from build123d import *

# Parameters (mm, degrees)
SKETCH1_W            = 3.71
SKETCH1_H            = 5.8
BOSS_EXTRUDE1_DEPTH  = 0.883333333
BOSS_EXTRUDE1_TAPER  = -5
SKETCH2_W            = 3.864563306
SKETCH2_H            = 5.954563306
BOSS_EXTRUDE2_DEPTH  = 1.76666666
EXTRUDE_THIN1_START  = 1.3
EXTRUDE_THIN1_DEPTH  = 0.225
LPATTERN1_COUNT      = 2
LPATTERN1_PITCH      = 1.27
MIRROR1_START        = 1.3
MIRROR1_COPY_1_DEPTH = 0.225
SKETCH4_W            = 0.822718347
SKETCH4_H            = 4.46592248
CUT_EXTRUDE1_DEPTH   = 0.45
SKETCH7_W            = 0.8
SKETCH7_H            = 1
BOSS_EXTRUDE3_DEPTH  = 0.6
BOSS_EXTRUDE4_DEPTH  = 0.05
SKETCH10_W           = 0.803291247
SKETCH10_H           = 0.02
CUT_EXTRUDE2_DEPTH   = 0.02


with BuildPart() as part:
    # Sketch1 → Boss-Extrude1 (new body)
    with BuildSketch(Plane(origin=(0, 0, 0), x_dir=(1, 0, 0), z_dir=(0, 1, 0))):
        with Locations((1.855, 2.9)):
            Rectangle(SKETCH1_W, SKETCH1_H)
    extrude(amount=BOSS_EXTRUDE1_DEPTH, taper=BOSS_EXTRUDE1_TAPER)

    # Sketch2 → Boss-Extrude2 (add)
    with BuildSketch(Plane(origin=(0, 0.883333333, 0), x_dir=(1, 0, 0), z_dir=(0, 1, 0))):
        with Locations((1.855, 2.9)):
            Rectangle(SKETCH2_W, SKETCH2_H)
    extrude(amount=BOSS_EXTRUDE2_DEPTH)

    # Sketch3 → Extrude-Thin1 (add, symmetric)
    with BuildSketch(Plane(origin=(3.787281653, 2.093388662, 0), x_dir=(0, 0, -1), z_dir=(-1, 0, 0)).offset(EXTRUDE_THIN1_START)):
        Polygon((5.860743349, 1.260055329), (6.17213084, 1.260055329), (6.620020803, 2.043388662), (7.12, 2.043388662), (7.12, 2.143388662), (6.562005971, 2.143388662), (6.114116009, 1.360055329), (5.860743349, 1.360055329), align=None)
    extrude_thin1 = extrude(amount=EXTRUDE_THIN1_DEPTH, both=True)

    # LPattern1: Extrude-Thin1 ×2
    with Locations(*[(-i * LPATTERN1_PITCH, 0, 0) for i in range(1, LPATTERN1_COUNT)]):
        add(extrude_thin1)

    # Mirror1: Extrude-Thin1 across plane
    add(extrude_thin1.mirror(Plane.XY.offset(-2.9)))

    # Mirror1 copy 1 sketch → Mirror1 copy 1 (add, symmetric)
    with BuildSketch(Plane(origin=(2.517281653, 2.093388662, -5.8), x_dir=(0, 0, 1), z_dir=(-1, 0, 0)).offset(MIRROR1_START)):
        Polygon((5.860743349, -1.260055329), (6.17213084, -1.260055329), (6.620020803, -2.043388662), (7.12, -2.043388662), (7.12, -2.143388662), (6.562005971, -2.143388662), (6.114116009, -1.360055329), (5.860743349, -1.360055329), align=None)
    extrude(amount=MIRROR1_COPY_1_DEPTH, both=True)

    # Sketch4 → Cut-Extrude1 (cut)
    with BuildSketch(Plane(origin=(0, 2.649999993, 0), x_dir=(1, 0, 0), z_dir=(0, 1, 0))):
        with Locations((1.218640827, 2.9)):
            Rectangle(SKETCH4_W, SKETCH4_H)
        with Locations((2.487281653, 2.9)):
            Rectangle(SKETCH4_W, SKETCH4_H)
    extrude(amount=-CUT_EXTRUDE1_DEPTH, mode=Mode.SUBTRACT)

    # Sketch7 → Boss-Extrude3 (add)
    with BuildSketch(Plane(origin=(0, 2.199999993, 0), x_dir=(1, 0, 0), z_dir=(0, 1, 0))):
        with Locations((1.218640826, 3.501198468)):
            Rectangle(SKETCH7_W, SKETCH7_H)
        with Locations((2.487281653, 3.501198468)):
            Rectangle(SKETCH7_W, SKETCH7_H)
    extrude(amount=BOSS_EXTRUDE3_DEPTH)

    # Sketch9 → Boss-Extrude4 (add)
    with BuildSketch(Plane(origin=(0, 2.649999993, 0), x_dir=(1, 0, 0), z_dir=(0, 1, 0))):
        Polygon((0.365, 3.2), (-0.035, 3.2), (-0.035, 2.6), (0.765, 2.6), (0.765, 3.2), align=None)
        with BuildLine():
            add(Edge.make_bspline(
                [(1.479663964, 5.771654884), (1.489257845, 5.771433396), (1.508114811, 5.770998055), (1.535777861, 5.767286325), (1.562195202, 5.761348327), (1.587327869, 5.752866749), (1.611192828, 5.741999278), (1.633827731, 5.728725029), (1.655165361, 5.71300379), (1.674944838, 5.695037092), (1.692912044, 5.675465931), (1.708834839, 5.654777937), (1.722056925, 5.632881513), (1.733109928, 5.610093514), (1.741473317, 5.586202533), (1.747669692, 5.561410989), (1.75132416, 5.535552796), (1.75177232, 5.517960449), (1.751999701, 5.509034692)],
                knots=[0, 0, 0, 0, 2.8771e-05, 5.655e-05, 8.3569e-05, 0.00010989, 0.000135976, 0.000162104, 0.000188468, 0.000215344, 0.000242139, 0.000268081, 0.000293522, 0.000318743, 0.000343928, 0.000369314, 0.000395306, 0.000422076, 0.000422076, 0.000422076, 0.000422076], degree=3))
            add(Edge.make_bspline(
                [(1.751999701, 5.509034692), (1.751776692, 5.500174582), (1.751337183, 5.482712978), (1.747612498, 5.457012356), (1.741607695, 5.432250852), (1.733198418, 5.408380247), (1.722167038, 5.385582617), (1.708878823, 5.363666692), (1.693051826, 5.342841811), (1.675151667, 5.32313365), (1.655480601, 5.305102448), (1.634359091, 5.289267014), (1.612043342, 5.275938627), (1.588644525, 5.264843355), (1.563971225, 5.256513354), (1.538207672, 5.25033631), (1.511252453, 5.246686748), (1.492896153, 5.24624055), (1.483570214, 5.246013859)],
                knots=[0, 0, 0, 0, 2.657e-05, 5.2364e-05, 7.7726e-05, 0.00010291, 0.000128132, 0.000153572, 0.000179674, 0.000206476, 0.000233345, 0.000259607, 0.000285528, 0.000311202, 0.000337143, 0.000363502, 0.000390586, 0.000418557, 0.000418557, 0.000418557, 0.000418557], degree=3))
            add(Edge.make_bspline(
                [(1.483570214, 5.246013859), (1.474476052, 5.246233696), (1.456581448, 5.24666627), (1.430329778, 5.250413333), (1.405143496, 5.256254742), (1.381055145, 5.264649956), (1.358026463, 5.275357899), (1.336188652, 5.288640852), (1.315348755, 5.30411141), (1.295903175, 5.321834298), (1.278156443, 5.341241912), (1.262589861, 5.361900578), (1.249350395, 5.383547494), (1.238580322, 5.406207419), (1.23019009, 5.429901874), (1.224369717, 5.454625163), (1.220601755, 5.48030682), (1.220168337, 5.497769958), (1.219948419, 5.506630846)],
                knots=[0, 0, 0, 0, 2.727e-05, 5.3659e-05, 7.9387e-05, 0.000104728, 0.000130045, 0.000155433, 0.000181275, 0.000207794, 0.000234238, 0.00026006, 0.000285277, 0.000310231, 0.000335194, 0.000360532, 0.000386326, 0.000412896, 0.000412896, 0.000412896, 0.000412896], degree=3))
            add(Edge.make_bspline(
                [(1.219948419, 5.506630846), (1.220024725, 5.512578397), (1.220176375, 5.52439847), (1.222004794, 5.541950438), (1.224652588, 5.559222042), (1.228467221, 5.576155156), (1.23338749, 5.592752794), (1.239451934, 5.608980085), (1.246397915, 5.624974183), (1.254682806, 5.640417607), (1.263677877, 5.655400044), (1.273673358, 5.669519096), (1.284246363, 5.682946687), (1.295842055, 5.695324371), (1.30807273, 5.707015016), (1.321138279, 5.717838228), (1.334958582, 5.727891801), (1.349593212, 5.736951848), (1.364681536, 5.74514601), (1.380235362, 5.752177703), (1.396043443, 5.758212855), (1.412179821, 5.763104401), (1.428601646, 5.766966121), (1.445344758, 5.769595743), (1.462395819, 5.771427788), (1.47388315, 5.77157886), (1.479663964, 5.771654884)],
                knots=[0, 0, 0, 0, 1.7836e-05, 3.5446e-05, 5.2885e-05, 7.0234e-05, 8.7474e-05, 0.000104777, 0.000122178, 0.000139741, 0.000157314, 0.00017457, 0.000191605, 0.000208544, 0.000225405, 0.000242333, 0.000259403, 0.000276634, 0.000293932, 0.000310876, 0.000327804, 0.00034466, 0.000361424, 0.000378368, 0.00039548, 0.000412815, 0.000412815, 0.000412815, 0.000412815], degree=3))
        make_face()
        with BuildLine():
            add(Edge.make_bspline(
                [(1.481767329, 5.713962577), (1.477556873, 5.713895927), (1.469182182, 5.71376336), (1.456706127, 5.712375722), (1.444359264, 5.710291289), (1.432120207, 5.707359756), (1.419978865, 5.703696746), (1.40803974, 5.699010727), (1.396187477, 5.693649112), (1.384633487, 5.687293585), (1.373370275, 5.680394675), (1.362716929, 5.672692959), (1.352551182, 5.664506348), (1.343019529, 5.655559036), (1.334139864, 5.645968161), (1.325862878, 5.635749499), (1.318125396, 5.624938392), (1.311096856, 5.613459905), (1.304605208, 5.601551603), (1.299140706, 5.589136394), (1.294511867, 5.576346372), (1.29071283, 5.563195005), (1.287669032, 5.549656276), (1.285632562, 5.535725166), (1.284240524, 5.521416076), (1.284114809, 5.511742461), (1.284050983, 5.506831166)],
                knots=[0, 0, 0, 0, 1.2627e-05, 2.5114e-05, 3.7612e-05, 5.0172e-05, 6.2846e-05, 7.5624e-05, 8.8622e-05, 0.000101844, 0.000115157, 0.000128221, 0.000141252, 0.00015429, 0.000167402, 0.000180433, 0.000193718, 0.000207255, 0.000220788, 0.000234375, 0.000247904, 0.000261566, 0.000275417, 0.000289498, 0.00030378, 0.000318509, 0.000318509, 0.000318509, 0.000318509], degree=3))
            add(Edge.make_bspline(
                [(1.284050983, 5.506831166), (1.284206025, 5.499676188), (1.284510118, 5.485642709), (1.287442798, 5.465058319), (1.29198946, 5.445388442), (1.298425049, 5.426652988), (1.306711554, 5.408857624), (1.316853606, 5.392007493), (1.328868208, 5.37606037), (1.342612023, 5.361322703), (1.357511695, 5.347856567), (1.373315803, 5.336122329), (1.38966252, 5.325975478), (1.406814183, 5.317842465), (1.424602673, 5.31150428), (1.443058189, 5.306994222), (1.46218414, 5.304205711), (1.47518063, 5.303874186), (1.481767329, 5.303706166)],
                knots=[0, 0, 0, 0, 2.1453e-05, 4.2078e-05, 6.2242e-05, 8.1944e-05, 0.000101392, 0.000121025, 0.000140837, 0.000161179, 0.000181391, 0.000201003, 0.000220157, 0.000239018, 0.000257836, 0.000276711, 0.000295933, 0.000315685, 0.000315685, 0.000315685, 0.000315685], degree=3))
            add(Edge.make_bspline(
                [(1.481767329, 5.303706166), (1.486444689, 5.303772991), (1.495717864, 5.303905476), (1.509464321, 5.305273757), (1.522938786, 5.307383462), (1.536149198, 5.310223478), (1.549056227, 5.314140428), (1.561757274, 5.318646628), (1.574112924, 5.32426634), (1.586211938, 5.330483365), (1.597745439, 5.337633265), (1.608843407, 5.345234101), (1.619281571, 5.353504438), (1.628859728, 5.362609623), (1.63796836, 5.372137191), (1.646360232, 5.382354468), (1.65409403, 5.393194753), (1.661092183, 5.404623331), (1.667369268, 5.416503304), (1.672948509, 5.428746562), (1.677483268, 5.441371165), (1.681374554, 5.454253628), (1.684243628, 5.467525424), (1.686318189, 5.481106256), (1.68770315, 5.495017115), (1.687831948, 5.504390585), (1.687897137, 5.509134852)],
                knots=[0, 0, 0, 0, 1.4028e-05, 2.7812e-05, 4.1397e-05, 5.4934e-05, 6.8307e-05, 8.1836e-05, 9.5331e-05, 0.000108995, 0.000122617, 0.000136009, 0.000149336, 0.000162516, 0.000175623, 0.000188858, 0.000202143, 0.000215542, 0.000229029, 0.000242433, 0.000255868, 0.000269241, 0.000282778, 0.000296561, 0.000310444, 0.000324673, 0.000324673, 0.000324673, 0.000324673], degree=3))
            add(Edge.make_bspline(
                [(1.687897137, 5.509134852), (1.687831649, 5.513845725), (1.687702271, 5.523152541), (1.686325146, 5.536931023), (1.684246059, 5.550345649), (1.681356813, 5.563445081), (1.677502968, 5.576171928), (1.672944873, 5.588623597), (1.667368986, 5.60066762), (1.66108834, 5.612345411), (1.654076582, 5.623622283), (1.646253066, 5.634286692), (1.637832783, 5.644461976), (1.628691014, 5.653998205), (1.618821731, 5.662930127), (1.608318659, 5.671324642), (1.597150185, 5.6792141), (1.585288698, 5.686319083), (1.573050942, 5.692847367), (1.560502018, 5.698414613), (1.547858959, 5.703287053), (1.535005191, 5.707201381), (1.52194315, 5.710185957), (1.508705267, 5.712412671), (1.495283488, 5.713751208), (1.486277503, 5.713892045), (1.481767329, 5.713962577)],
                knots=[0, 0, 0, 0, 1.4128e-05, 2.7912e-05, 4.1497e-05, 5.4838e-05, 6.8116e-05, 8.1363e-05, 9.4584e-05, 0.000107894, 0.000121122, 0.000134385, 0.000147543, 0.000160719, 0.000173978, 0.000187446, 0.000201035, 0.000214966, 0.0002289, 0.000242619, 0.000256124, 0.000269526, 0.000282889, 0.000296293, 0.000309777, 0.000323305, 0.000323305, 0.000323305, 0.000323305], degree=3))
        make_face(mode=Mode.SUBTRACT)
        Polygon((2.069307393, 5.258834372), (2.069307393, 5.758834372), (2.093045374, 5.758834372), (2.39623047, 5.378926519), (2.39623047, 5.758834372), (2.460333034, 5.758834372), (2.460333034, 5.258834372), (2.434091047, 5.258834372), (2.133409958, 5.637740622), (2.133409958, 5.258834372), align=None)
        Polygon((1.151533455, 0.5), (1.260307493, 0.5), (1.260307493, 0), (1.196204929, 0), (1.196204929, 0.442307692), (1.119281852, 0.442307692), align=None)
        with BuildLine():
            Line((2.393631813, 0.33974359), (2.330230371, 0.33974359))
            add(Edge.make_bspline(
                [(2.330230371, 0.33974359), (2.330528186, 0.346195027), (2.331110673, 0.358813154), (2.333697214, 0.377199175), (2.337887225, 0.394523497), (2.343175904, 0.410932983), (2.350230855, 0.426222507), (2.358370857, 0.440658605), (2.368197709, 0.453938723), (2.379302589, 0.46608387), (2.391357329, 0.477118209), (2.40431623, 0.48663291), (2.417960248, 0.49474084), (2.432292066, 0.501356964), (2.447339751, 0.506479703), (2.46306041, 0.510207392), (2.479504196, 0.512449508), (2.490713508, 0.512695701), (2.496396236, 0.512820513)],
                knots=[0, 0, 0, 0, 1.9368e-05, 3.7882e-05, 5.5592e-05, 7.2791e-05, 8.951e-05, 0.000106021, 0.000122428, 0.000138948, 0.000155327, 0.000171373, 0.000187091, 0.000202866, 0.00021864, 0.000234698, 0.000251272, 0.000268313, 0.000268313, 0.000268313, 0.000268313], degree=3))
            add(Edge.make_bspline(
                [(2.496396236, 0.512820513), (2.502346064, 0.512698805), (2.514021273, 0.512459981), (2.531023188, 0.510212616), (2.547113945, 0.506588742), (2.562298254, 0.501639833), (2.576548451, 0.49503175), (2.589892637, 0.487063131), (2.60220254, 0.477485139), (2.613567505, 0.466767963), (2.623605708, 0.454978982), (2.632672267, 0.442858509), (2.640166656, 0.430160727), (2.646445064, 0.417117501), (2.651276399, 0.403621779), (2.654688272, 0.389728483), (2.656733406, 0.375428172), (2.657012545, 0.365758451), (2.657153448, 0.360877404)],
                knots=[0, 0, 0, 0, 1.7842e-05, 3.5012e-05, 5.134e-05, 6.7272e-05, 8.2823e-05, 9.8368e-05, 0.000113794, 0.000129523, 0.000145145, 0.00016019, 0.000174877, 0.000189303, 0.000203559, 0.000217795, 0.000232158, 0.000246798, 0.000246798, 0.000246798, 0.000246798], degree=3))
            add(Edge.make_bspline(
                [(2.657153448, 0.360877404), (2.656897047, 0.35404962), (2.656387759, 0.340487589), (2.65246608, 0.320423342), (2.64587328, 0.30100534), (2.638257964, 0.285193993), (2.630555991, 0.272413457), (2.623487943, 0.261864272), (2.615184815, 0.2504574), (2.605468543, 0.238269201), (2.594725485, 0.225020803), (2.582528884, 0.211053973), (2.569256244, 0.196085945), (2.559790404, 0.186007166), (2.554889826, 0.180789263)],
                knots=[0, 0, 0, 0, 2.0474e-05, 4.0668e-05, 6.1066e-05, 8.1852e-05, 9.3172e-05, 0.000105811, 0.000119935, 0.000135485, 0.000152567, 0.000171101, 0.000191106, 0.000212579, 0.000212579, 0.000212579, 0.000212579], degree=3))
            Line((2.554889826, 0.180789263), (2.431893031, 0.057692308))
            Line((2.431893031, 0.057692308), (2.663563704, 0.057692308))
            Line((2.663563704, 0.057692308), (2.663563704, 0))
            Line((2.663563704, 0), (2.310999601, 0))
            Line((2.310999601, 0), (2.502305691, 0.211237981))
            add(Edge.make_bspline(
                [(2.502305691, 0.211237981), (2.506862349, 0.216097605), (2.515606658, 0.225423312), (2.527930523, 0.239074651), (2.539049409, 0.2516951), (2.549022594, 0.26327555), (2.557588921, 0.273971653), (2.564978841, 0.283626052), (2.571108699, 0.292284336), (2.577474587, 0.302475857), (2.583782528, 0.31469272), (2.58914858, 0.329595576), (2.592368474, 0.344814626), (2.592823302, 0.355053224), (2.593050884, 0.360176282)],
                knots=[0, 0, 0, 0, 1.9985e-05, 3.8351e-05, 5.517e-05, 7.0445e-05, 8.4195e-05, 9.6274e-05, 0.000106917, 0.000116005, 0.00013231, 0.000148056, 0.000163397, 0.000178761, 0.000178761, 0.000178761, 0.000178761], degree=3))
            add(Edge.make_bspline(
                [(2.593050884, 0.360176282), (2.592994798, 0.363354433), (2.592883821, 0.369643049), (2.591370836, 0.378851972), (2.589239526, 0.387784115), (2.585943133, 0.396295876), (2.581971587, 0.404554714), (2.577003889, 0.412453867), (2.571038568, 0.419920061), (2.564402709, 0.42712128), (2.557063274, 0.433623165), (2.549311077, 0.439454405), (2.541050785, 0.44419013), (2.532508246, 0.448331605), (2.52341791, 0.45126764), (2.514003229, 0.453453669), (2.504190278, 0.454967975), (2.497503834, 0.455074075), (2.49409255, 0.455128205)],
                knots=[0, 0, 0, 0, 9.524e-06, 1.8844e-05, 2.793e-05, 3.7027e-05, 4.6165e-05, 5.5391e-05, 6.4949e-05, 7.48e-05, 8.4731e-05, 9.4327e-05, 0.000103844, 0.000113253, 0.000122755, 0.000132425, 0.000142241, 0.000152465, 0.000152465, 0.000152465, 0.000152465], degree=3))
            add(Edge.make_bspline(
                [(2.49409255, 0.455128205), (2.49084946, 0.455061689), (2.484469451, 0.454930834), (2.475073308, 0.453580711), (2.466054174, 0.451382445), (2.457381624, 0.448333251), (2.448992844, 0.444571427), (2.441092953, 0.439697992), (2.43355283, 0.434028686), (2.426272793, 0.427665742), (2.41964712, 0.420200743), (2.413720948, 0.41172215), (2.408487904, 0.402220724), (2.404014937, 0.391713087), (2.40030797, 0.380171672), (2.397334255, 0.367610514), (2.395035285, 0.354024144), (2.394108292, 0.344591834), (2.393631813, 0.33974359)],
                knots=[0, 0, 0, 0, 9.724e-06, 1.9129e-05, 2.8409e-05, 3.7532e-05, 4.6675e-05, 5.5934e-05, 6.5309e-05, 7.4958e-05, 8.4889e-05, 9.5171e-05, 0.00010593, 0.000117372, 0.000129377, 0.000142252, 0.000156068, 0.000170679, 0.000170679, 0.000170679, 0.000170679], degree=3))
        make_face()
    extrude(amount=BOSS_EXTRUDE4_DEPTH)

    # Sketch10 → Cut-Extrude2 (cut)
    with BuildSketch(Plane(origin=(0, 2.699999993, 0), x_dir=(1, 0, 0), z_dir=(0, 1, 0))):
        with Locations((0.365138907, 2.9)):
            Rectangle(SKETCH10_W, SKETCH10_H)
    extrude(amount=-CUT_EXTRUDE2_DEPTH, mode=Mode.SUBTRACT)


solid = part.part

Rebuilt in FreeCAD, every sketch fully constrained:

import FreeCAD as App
import Part
import Sketcher
from FreeCAD import Vector
Q = App.Units.Quantity

doc = App.newDocument("Part")
body = doc.addObject("PartDesign::Body", "Body")

sketch1 = doc.addObject("Sketcher::SketchObject", "Sketch")
body.addObject(sketch1)
sketch1.AttachmentSupport = (doc.XZ_Plane, [""])
sketch1.MapMode = "FlatFace"
sketch1.addGeometry([
    Part.LineSegment(Vector(0, -5.8, 0), Vector(0, 0, 0)),
    Part.LineSegment(Vector(0, 0, 0), Vector(3.7, 0, 0)),
    Part.LineSegment(Vector(3.7, 0, 0), Vector(3.7, -5.8, 0)),
    Part.LineSegment(Vector(3.7, -5.8, 0), Vector(0, -5.8, 0)),
], False)
sketch1.addConstraint([
    Sketcher.Constraint("Coincident", 0, 2, 1, 1),
    Sketcher.Constraint("Coincident", 1, 2, 2, 1),
    Sketcher.Constraint("Coincident", 2, 2, 3, 1),
    Sketcher.Constraint("Coincident", 3, 2, 0, 1),
    Sketcher.Constraint("Vertical", 0),
    Sketcher.Constraint("Horizontal", 1),
    Sketcher.Constraint("Vertical", 2),
    Sketcher.Constraint("Horizontal", 3),
    Sketcher.Constraint("Coincident", 0, 2, -1, 1),
    Sketcher.Constraint("DistanceY", 0, 1, 0, 2, Q("5.8 mm")),
    Sketcher.Constraint("DistanceX", 1, 1, 1, 2, Q("3.71 mm")),
])
pad1 = doc.addObject("PartDesign::Pad", "Pad")
body.addObject(pad1)
pad1.Profile = sketch1
pad1.Length = 0.883333
pad1.Reversed = True
pad1.TaperAngle = 5

sketch2 = doc.addObject("Sketcher::SketchObject", "Sketch001")
body.addObject(sketch2)
sketch2.AttachmentSupport = (doc.XZ_Plane, [""])
sketch2.MapMode = "FlatFace"
sketch2.AttachmentOffset = App.Placement(Vector(0, 0, -0.883333), App.Rotation())
sketch2.addGeometry([
    Part.LineSegment(Vector(-0.1, -5.9, 0), Vector(-0.1, 0.1, 0)),
    Part.LineSegment(Vector(-0.1, 0.1, 0), Vector(3.8, 0.1, 0)),
    Part.LineSegment(Vector(3.8, 0.1, 0), Vector(3.8, -5.9, 0)),
    Part.LineSegment(Vector(3.8, -5.9, 0), Vector(-0.1, -5.9, 0)),
], False)
sketch2.addConstraint([
    Sketcher.Constraint("Coincident", 0, 2, 1, 1),
    Sketcher.Constraint("Coincident", 1, 2, 2, 1),
    Sketcher.Constraint("Coincident", 2, 2, 3, 1),
    Sketcher.Constraint("Coincident", 3, 2, 0, 1),
    Sketcher.Constraint("Vertical", 0),
    Sketcher.Constraint("Horizontal", 1),
    Sketcher.Constraint("Vertical", 2),
    Sketcher.Constraint("Horizontal", 3),
    Sketcher.Constraint("DistanceX", 1, 1, 1, 2, Q("3.864563 mm")),
    Sketcher.Constraint("DistanceY", 0, 1, 0, 2, Q("5.954563 mm")),
    Sketcher.Constraint("DistanceX", 0, 2, -1, 1, Q("0.077282 mm")),
    Sketcher.Constraint("DistanceY", -1, 1, 0, 2, Q("0.077282 mm")),
])
pad2 = doc.addObject("PartDesign::Pad", "Pad001")
body.addObject(pad2)
pad2.Profile = sketch2
pad2.Length = 1.766667
pad2.Reversed = True

sketch3 = doc.addObject("Sketcher::SketchObject", "Sketch002")
body.addObject(sketch3)
sketch3.AttachmentSupport = (doc.YZ_Plane, [""])
sketch3.MapMode = "FlatFace"
sketch3.AttachmentOffset = App.Placement(Vector(0, 0, 2.487282), App.Rotation())
sketch3.addGeometry([
    Part.LineSegment(Vector(0.83, -5.86, 0), Vector(0.83, -6.17, 0)),
    Part.LineSegment(Vector(0.83, -6.17, 0), Vector(0.05, -6.62, 0)),
    Part.LineSegment(Vector(0.05, -6.62, 0), Vector(0.05, -7.12, 0)),
    Part.LineSegment(Vector(0.05, -7.12, 0), Vector(-0.05, -7.12, 0)),
    Part.LineSegment(Vector(-0.05, -7.12, 0), Vector(-0.05, -6.56, 0)),
    Part.LineSegment(Vector(-0.05, -6.56, 0), Vector(0.73, -6.11, 0)),
    Part.LineSegment(Vector(0.73, -6.11, 0), Vector(0.73, -5.86, 0)),
    Part.LineSegment(Vector(0.73, -5.86, 0), Vector(0.83, -5.86, 0)),
], False)
sketch3.addConstraint([
    Sketcher.Constraint("Coincident", 0, 2, 1, 1),
    Sketcher.Constraint("Coincident", 1, 2, 2, 1),
    Sketcher.Constraint("Coincident", 2, 2, 3, 1),
    Sketcher.Constraint("Coincident", 3, 2, 4, 1),
    Sketcher.Constraint("Coincident", 4, 2, 5, 1),
    Sketcher.Constraint("Coincident", 5, 2, 6, 1),
    Sketcher.Constraint("Coincident", 6, 2, 7, 1),
    Sketcher.Constraint("Coincident", 7, 2, 0, 1),
    Sketcher.Constraint("Vertical", 0),
    Sketcher.Constraint("Vertical", 2),
    Sketcher.Constraint("Horizontal", 3),
    Sketcher.Constraint("Vertical", 4),
    Sketcher.Constraint("Vertical", 6),
    Sketcher.Constraint("Horizontal", 7),
    Sketcher.Constraint("Parallel", 1, 5),
    Sketcher.Constraint("Equal", 3, 7),
    Sketcher.Constraint("DistanceX", 3, 2, 3, 1, Q("0.1 mm")),
    Sketcher.Constraint("DistanceX", -1, 1, 1, 2, Q("0.05 mm")),
    Sketcher.Constraint("DistanceY", 2, 2, -1, 1, Q("7.12 mm")),
    Sketcher.Constraint("DistanceY", 2, 2, 2, 1, Q("0.499979 mm")),
    Sketcher.Constraint("Distance", 1, Q("0.902339 mm")),
    Sketcher.Constraint("DistanceY", 0, 2, 0, 1, Q("0.311387 mm")),
    Sketcher.Constraint("DistanceY", 4, 1, 4, 2, Q("0.557994 mm")),
    Sketcher.Constraint("DistanceY", 0, 2, -1, 1, Q("6.172131 mm")),
])
pad3 = doc.addObject("PartDesign::Pad", "Pad002")
body.addObject(pad3)
pad3.Profile = sketch3
pad3.Length = 0.45
pad3.Midplane = True
doc.recompute()

linearpattern = doc.addObject("PartDesign::LinearPattern", "LinearPattern")
body.addObject(linearpattern)
linearpattern.Originals = [pad3]
linearpattern.Direction = (doc.X_Axis, [""])
linearpattern.Mode = "offset"
linearpattern.Offset = 1.27
linearpattern.Occurrences = 2
linearpattern.Reversed = True
body.Tip = linearpattern
doc.recompute()

datumplane = doc.addObject("PartDesign::Plane", "DatumPlane")
body.addObject(datumplane)
datumplane.AttachmentSupport = (doc.XY_Plane, [""])
datumplane.MapMode = "FlatFace"
datumplane.AttachmentOffset = App.Placement(Vector(0, 0, -2.9), App.Rotation())
mirrored = doc.addObject("PartDesign::Mirrored", "Mirrored")
body.addObject(mirrored)
mirrored.Originals = [pad3]
mirrored.MirrorPlane = (datumplane, [""])
body.Tip = mirrored

sketch4 = doc.addObject("Sketcher::SketchObject", "Sketch003")
body.addObject(sketch4)
sketch4.AttachmentSupport = (doc.YZ_Plane, [""])
sketch4.MapMode = "FlatFace"
sketch4.AttachmentOffset = App.Placement(Vector(0, 0, 1.217282), App.Rotation())
sketch4.addGeometry([
    Part.LineSegment(Vector(0.83, 0.37, 0), Vector(0.83, 0.06, 0)),
    Part.LineSegment(Vector(0.83, 0.06, 0), Vector(0.73, 0.06, 0)),
    Part.LineSegment(Vector(0.73, 0.06, 0), Vector(0.73, 0.31, 0)),
    Part.LineSegment(Vector(0.73, 0.31, 0), Vector(-0.05, 0.76, 0)),
    Part.LineSegment(Vector(-0.05, 0.76, 0), Vector(-0.05, 1.32, 0)),
    Part.LineSegment(Vector(-0.05, 1.32, 0), Vector(0.05, 1.32, 0)),
    Part.LineSegment(Vector(0.05, 1.32, 0), Vector(0.05, 0.82, 0)),
    Part.LineSegment(Vector(0.05, 0.82, 0), Vector(0.83, 0.37, 0)),
], False)
sketch4.addConstraint([
    Sketcher.Constraint("Coincident", 0, 2, 1, 1),
    Sketcher.Constraint("Coincident", 1, 2, 2, 1),
    Sketcher.Constraint("Coincident", 2, 2, 3, 1),
    Sketcher.Constraint("Coincident", 3, 2, 4, 1),
    Sketcher.Constraint("Coincident", 4, 2, 5, 1),
    Sketcher.Constraint("Coincident", 5, 2, 6, 1),
    Sketcher.Constraint("Coincident", 6, 2, 7, 1),
    Sketcher.Constraint("Coincident", 7, 2, 0, 1),
    Sketcher.Constraint("Vertical", 0),
    Sketcher.Constraint("Horizontal", 1),
    Sketcher.Constraint("Vertical", 2),
    Sketcher.Constraint("Vertical", 4),
    Sketcher.Constraint("Horizontal", 5),
    Sketcher.Constraint("Vertical", 6),
    Sketcher.Constraint("Parallel", 3, 7),
    Sketcher.Constraint("Equal", 1, 5),
    Sketcher.Constraint("DistanceX", 1, 2, 1, 1, Q("0.1 mm")),
    Sketcher.Constraint("DistanceX", 3, 2, -1, 1, Q("0.05 mm")),
    Sketcher.Constraint("DistanceY", -1, 1, 4, 2, Q("1.32 mm")),
    Sketcher.Constraint("DistanceY", 6, 2, 6, 1, Q("0.499979 mm")),
    Sketcher.Constraint("Distance", 3, Q("0.902339 mm")),
    Sketcher.Constraint("DistanceY", 0, 2, 0, 1, Q("0.311387 mm")),
    Sketcher.Constraint("DistanceY", 2, 1, 2, 2, Q("0.253373 mm")),
    Sketcher.Constraint("DistanceY", -1, 1, 7, 2, Q("0.372131 mm")),
])
pad4 = doc.addObject("PartDesign::Pad", "Pad003")
body.addObject(pad4)
pad4.Profile = sketch4
pad4.Length = 0.45
pad4.Midplane = True

sketch5 = doc.addObject("Sketcher::SketchObject", "Sketch004")
body.addObject(sketch5)
sketch5.AttachmentSupport = (doc.XZ_Plane, [""])
sketch5.MapMode = "FlatFace"
sketch5.AttachmentOffset = App.Placement(Vector(0, 0, -2.65), App.Rotation())
sketch5.addGeometry([
    Part.LineSegment(Vector(0.8, -5.1, 0), Vector(0.8, -0.7, 0)),
    Part.LineSegment(Vector(0.8, -0.7, 0), Vector(1.6, -0.7, 0)),
    Part.LineSegment(Vector(1.6, -0.7, 0), Vector(1.6, -5.1, 0)),
    Part.LineSegment(Vector(1.6, -5.1, 0), Vector(0.8, -5.1, 0)),
    Part.LineSegment(Vector(2.1, -5.1, 0), Vector(2.1, -0.7, 0)),
    Part.LineSegment(Vector(2.1, -0.7, 0), Vector(2.9, -0.7, 0)),
    Part.LineSegment(Vector(2.9, -0.7, 0), Vector(2.9, -5.1, 0)),
    Part.LineSegment(Vector(2.9, -5.1, 0), Vector(2.1, -5.1, 0)),
], False)
sketch5.addConstraint([
    Sketcher.Constraint("Coincident", 0, 2, 1, 1),
    Sketcher.Constraint("Coincident", 1, 2, 2, 1),
    Sketcher.Constraint("Coincident", 2, 2, 3, 1),
    Sketcher.Constraint("Coincident", 3, 2, 0, 1),
    Sketcher.Constraint("Coincident", 4, 2, 5, 1),
    Sketcher.Constraint("Coincident", 5, 2, 6, 1),
    Sketcher.Constraint("Coincident", 6, 2, 7, 1),
    Sketcher.Constraint("Coincident", 7, 2, 4, 1),
    Sketcher.Constraint("Vertical", 0),
    Sketcher.Constraint("Horizontal", 1),
    Sketcher.Constraint("Vertical", 2),
    Sketcher.Constraint("Horizontal", 3),
    Sketcher.Constraint("Vertical", 4),
    Sketcher.Constraint("Horizontal", 5),
    Sketcher.Constraint("Vertical", 6),
    Sketcher.Constraint("Horizontal", 7),
    Sketcher.Constraint("Horizontal", 1, 2, 4, 2),
    Sketcher.Constraint("Horizontal", 3, 2, 6, 2),
    Sketcher.Constraint("Equal", 3, 5),
    Sketcher.Constraint("DistanceX", -1, 1, 1, 2, Q("1.63 mm")),
    Sketcher.Constraint("DistanceX", 1, 1, 1, 2, Q("0.822718 mm")),
    Sketcher.Constraint("DistanceY", 0, 1, 0, 2, Q("4.465922 mm")),
    Sketcher.Constraint("DistanceY", 0, 2, -1, 1, Q("0.667039 mm")),
    Sketcher.Constraint("DistanceX", -1, 1, 5, 2, Q("2.898641 mm")),
])
pocket1 = doc.addObject("PartDesign::Pocket", "Pocket")
body.addObject(pocket1)
pocket1.Profile = sketch5
pocket1.Length = 0.45
pocket1.Reversed = True

sketch6 = doc.addObject("Sketcher::SketchObject", "Sketch005")
body.addObject(sketch6)
sketch6.AttachmentSupport = (doc.XZ_Plane, [""])
sketch6.MapMode = "FlatFace"
sketch6.AttachmentOffset = App.Placement(Vector(0, 0, -2.2), App.Rotation())
sketch6.addGeometry([
    Part.LineSegment(Vector(0.8, -4, 0), Vector(0.8, -3, 0)),
    Part.LineSegment(Vector(0.8, -3, 0), Vector(1.6, -3, 0)),
    Part.LineSegment(Vector(1.6, -3, 0), Vector(1.6, -4, 0)),
    Part.LineSegment(Vector(1.6, -4, 0), Vector(0.8, -4, 0)),
    Part.LineSegment(Vector(2.1, -4, 0), Vector(2.1, -3, 0)),
    Part.LineSegment(Vector(2.1, -3, 0), Vector(2.9, -3, 0)),
    Part.LineSegment(Vector(2.9, -3, 0), Vector(2.9, -4, 0)),
    Part.LineSegment(Vector(2.9, -4, 0), Vector(2.1, -4, 0)),
], False)
sketch6.addConstraint([
    Sketcher.Constraint("Coincident", 0, 2, 1, 1),
    Sketcher.Constraint("Coincident", 1, 2, 2, 1),
    Sketcher.Constraint("Coincident", 2, 2, 3, 1),
    Sketcher.Constraint("Coincident", 3, 2, 0, 1),
    Sketcher.Constraint("Coincident", 4, 2, 5, 1),
    Sketcher.Constraint("Coincident", 5, 2, 6, 1),
    Sketcher.Constraint("Coincident", 6, 2, 7, 1),
    Sketcher.Constraint("Coincident", 7, 2, 4, 1),
    Sketcher.Constraint("Vertical", 0),
    Sketcher.Constraint("Horizontal", 1),
    Sketcher.Constraint("Vertical", 2),
    Sketcher.Constraint("Horizontal", 3),
    Sketcher.Constraint("Vertical", 4),
    Sketcher.Constraint("Horizontal", 5),
    Sketcher.Constraint("Vertical", 6),
    Sketcher.Constraint("Horizontal", 7),
    Sketcher.Constraint("Horizontal", 1, 2, 4, 2),
    Sketcher.Constraint("Horizontal", 3, 2, 6, 2),
    Sketcher.Constraint("Equal", 3, 5),
    Sketcher.Constraint("DistanceY", 0, 1, 0, 2, Q("1 mm")),
    Sketcher.Constraint("DistanceX", 1, 1, 1, 2, Q("0.8 mm")),
    Sketcher.Constraint("DistanceY", 0, 2, -1, 1, Q("3.001198 mm")),
    Sketcher.Constraint("DistanceX", -1, 1, 0, 2, Q("0.818641 mm")),
    Sketcher.Constraint("DistanceX", -1, 1, 4, 2, Q("2.087282 mm")),
])
pad5 = doc.addObject("PartDesign::Pad", "Pad004")
body.addObject(pad5)
pad5.Profile = sketch6
pad5.Length = 0.6
pad5.Reversed = True

sketch7 = doc.addObject("Sketcher::SketchObject", "Sketch006")
body.addObject(sketch7)
sketch7.AttachmentSupport = (doc.XZ_Plane, [""])
sketch7.MapMode = "FlatFace"
sketch7.AttachmentOffset = App.Placement(Vector(0, 0, -2.65), App.Rotation())
sketch7.addGeometry([
    Part.LineSegment(Vector(-0.035, -3.2, 0), Vector(-0.035, -2.6, 0)),
    Part.LineSegment(Vector(-0.035, -2.6, 0), Vector(0.765, -2.6, 0)),
    Part.LineSegment(Vector(0.765, -2.6, 0), Vector(0.765, -3.2, 0)),
    Part.LineSegment(Vector(0.765, -3.2, 0), Vector(-0.035, -3.2, 0)),
    Part.BSplineCurve([Vector(1.479664, -5.771655, 0), Vector(1.489258, -5.771433, 0), Vector(1.508115, -5.770998, 0), Vector(1.535778, -5.767286, 0), Vector(1.562195, -5.761348, 0), Vector(1.587328, -5.752867, 0), Vector(1.611193, -5.741999, 0), Vector(1.633828, -5.728725, 0), Vector(1.655165, -5.713004, 0), Vector(1.674945, -5.695037, 0), Vector(1.692912, -5.675466, 0), Vector(1.708835, -5.654778, 0), Vector(1.722057, -5.632882, 0), Vector(1.73311, -5.610094, 0), Vector(1.741473, -5.586203, 0), Vector(1.74767, -5.561411, 0), Vector(1.751324, -5.535553, 0), Vector(1.751772, -5.51796, 0), Vector(1.752, -5.509035, 0)], [4, 1, 1, 1, 1, 1, 1, 1, 1, 1, 1, 1, 1, 1, 1, 1, 4], [0, 0.000028771, 0.00005655, 0.000083569, 0.00010989, 0.000135976, 0.000162104, 0.000188468, 0.000215344, 0.000242139, 0.000268081, 0.000293522, 0.000318743, 0.000343928, 0.000369314, 0.000395306, 0.000422076], False, 3, [1, 1, 1, 1, 1, 1, 1, 1, 1, 1, 1, 1, 1, 1, 1, 1, 1, 1, 1], False),
    Part.BSplineCurve([Vector(1.219948, -5.506631, 0), Vector(1.220025, -5.512578, 0), Vector(1.220176, -5.524398, 0), Vector(1.222005, -5.54195, 0), Vector(1.224653, -5.559222, 0), Vector(1.228467, -5.576155, 0), Vector(1.233387, -5.592753, 0), Vector(1.239452, -5.60898, 0), Vector(1.246398, -5.624974, 0), Vector(1.254683, -5.640418, 0), Vector(1.263678, -5.6554, 0), Vector(1.273673, -5.669519, 0), Vector(1.284246, -5.682947, 0), Vector(1.295842, -5.695324, 0), Vector(1.308073, -5.707015, 0), Vector(1.321138, -5.717838, 0), Vector(1.334959, -5.727892, 0), Vector(1.349593, -5.736952, 0), Vector(1.364682, -5.745146, 0), Vector(1.380235, -5.752178, 0), Vector(1.396043, -5.758213, 0), Vector(1.41218, -5.763104, 0), Vector(1.428602, -5.766966, 0), Vector(1.445345, -5.769596, 0), Vector(1.462396, -5.771428, 0), Vector(1.473883, -5.771579, 0), Vector(1.479664, -5.771655, 0)], [4, 1, 1, 1, 1, 1, 1, 1, 1, 1, 1, 1, 1, 1, 1, 1, 1, 1, 1, 1, 1, 1, 1, 1, 4], [0, 0.000017836, 0.000035446, 0.000052885, 0.000070234, 0.000087474, 0.000104777, 0.000122178, 0.000139741, 0.000157314, 0.00017457, 0.000191605, 0.000208544, 0.000225405, 0.000242333, 0.000259403, 0.000276634, 0.000293932, 0.000310876, 0.000327804, 0.00034466, 0.000361424, 0.000378368, 0.00039548, 0.000412815], False, 3, [1, 1, 1, 1, 1, 1, 1, 1, 1, 1, 1, 1, 1, 1, 1, 1, 1, 1, 1, 1, 1, 1, 1, 1, 1, 1, 1], False),
    Part.BSplineCurve([Vector(1.48357, -5.246014, 0), Vector(1.474476, -5.246234, 0), Vector(1.456581, -5.246666, 0), Vector(1.43033, -5.250413, 0), Vector(1.405143, -5.256255, 0), Vector(1.381055, -5.26465, 0), Vector(1.358026, -5.275358, 0), Vector(1.336189, -5.288641, 0), Vector(1.315349, -5.304111, 0), Vector(1.295903, -5.321834, 0), Vector(1.278156, -5.341242, 0), Vector(1.26259, -5.361901, 0), Vector(1.24935, -5.383547, 0), Vector(1.23858, -5.406207, 0), Vector(1.23019, -5.429902, 0), Vector(1.22437, -5.454625, 0), Vector(1.220602, -5.480307, 0), Vector(1.220168, -5.49777, 0), Vector(1.219948, -5.506631, 0)], [4, 1, 1, 1, 1, 1, 1, 1, 1, 1, 1, 1, 1, 1, 1, 1, 4], [0, 0.00002727, 0.000053659, 0.000079387, 0.000104728, 0.000130045, 0.000155433, 0.000181275, 0.000207794, 0.000234238, 0.00026006, 0.000285277, 0.000310231, 0.000335194, 0.000360532, 0.000386326, 0.000412896], False, 3, [1, 1, 1, 1, 1, 1, 1, 1, 1, 1, 1, 1, 1, 1, 1, 1, 1, 1, 1], False),
    Part.BSplineCurve([Vector(1.752, -5.509035, 0), Vector(1.751777, -5.500175, 0), Vector(1.751337, -5.482713, 0), Vector(1.747612, -5.457012, 0), Vector(1.741608, -5.432251, 0), Vector(1.733198, -5.40838, 0), Vector(1.722167, -5.385583, 0), Vector(1.708879, -5.363667, 0), Vector(1.693052, -5.342842, 0), Vector(1.675152, -5.323134, 0), Vector(1.655481, -5.305102, 0), Vector(1.634359, -5.289267, 0), Vector(1.612043, -5.275939, 0), Vector(1.588645, -5.264843, 0), Vector(1.563971, -5.256513, 0), Vector(1.538208, -5.250336, 0), Vector(1.511252, -5.246687, 0), Vector(1.492896, -5.246241, 0), Vector(1.48357, -5.246014, 0)], [4, 1, 1, 1, 1, 1, 1, 1, 1, 1, 1, 1, 1, 1, 1, 1, 4], [0, 0.00002657, 0.000052364, 0.000077726, 0.00010291, 0.000128132, 0.000153572, 0.000179674, 0.000206476, 0.000233345, 0.000259607, 0.000285528, 0.000311202, 0.000337143, 0.000363502, 0.000390586, 0.000418557], False, 3, [1, 1, 1, 1, 1, 1, 1, 1, 1, 1, 1, 1, 1, 1, 1, 1, 1, 1, 1], False),
    Part.BSplineCurve([Vector(1.687897, -5.509135, 0), Vector(1.687832, -5.513846, 0), Vector(1.687702, -5.523153, 0), Vector(1.686325, -5.536931, 0), Vector(1.684246, -5.550346, 0), Vector(1.681357, -5.563445, 0), Vector(1.677503, -5.576172, 0), Vector(1.672945, -5.588624, 0), Vector(1.667369, -5.600668, 0), Vector(1.661088, -5.612345, 0), Vector(1.654077, -5.623622, 0), Vector(1.646253, -5.634287, 0), Vector(1.637833, -5.644462, 0), Vector(1.628691, -5.653998, 0), Vector(1.618822, -5.66293, 0), Vector(1.608319, -5.671325, 0), Vector(1.59715, -5.679214, 0), Vector(1.585289, -5.686319, 0), Vector(1.573051, -5.692847, 0), Vector(1.560502, -5.698415, 0), Vector(1.547859, -5.703287, 0), Vector(1.535005, -5.707201, 0), Vector(1.521943, -5.710186, 0), Vector(1.508705, -5.712413, 0), Vector(1.495283, -5.713751, 0), Vector(1.486278, -5.713892, 0), Vector(1.481767, -5.713963, 0)], [4, 1, 1, 1, 1, 1, 1, 1, 1, 1, 1, 1, 1, 1, 1, 1, 1, 1, 1, 1, 1, 1, 1, 1, 4], [0, 0.000014128, 0.000027912, 0.000041497, 0.000054838, 0.000068116, 0.000081363, 0.000094584, 0.000107894, 0.000121122, 0.000134385, 0.000147543, 0.000160719, 0.000173978, 0.000187446, 0.000201035, 0.000214966, 0.0002289, 0.000242619, 0.000256124, 0.000269526, 0.000282889, 0.000296293, 0.000309777, 0.000323305], False, 3, [1, 1, 1, 1, 1, 1, 1, 1, 1, 1, 1, 1, 1, 1, 1, 1, 1, 1, 1, 1, 1, 1, 1, 1, 1, 1, 1], False),
    Part.BSplineCurve([Vector(1.481767, -5.303706, 0), Vector(1.486445, -5.303773, 0), Vector(1.495718, -5.303905, 0), Vector(1.509464, -5.305274, 0), Vector(1.522939, -5.307383, 0), Vector(1.536149, -5.310223, 0), Vector(1.549056, -5.31414, 0), Vector(1.561757, -5.318647, 0), Vector(1.574113, -5.324266, 0), Vector(1.586212, -5.330483, 0), Vector(1.597745, -5.337633, 0), Vector(1.608843, -5.345234, 0), Vector(1.619282, -5.353504, 0), Vector(1.62886, -5.36261, 0), Vector(1.637968, -5.372137, 0), Vector(1.64636, -5.382354, 0), Vector(1.654094, -5.393195, 0), Vector(1.661092, -5.404623, 0), Vector(1.667369, -5.416503, 0), Vector(1.672949, -5.428747, 0), Vector(1.677483, -5.441371, 0), Vector(1.681375, -5.454254, 0), Vector(1.684244, -5.467525, 0), Vector(1.686318, -5.481106, 0), Vector(1.687703, -5.495017, 0), Vector(1.687832, -5.504391, 0), Vector(1.687897, -5.509135, 0)], [4, 1, 1, 1, 1, 1, 1, 1, 1, 1, 1, 1, 1, 1, 1, 1, 1, 1, 1, 1, 1, 1, 1, 1, 4], [0, 0.000014028, 0.000027812, 0.000041397, 0.000054934, 0.000068307, 0.000081836, 0.000095331, 0.000108995, 0.000122617, 0.000136009, 0.000149336, 0.000162516, 0.000175623, 0.000188858, 0.000202143, 0.000215542, 0.000229029, 0.000242433, 0.000255868, 0.000269241, 0.000282778, 0.000296561, 0.000310444, 0.000324673], False, 3, [1, 1, 1, 1, 1, 1, 1, 1, 1, 1, 1, 1, 1, 1, 1, 1, 1, 1, 1, 1, 1, 1, 1, 1, 1, 1, 1], False),
    Part.BSplineCurve([Vector(1.284051, -5.506831, 0), Vector(1.284206, -5.499676, 0), Vector(1.28451, -5.485643, 0), Vector(1.287443, -5.465058, 0), Vector(1.291989, -5.445388, 0), Vector(1.298425, -5.426653, 0), Vector(1.306712, -5.408858, 0), Vector(1.316854, -5.392007, 0), Vector(1.328868, -5.37606, 0), Vector(1.342612, -5.361323, 0), Vector(1.357512, -5.347857, 0), Vector(1.373316, -5.336122, 0), Vector(1.389663, -5.325975, 0), Vector(1.406814, -5.317842, 0), Vector(1.424603, -5.311504, 0), Vector(1.443058, -5.306994, 0), Vector(1.462184, -5.304206, 0), Vector(1.475181, -5.303874, 0), Vector(1.481767, -5.303706, 0)], [4, 1, 1, 1, 1, 1, 1, 1, 1, 1, 1, 1, 1, 1, 1, 1, 4], [0, 0.000021453, 0.000042078, 0.000062242, 0.000081944, 0.000101392, 0.000121025, 0.000140837, 0.000161179, 0.000181391, 0.000201003, 0.000220157, 0.000239018, 0.000257836, 0.000276711, 0.000295933, 0.000315685], False, 3, [1, 1, 1, 1, 1, 1, 1, 1, 1, 1, 1, 1, 1, 1, 1, 1, 1, 1, 1], False),
    Part.BSplineCurve([Vector(1.481767, -5.713963, 0), Vector(1.477557, -5.713896, 0), Vector(1.469182, -5.713763, 0), Vector(1.456706, -5.712376, 0), Vector(1.444359, -5.710291, 0), Vector(1.43212, -5.70736, 0), Vector(1.419979, -5.703697, 0), Vector(1.40804, -5.699011, 0), Vector(1.396187, -5.693649, 0), Vector(1.384633, -5.687294, 0), Vector(1.37337, -5.680395, 0), Vector(1.362717, -5.672693, 0), Vector(1.352551, -5.664506, 0), Vector(1.34302, -5.655559, 0), Vector(1.33414, -5.645968, 0), Vector(1.325863, -5.635749, 0), Vector(1.318125, -5.624938, 0), Vector(1.311097, -5.61346, 0), Vector(1.304605, -5.601552, 0), Vector(1.299141, -5.589136, 0), Vector(1.294512, -5.576346, 0), Vector(1.290713, -5.563195, 0), Vector(1.287669, -5.549656, 0), Vector(1.285633, -5.535725, 0), Vector(1.284241, -5.521416, 0), Vector(1.284115, -5.511742, 0), Vector(1.284051, -5.506831, 0)], [4, 1, 1, 1, 1, 1, 1, 1, 1, 1, 1, 1, 1, 1, 1, 1, 1, 1, 1, 1, 1, 1, 1, 1, 4], [0, 0.000012627, 0.000025114, 0.000037612, 0.000050172, 0.000062846, 0.000075624, 0.000088622, 0.000101844, 0.000115157, 0.000128221, 0.000141252, 0.00015429, 0.000167402, 0.000180433, 0.000193718, 0.000207255, 0.000220788, 0.000234375, 0.000247904, 0.000261566, 0.000275417, 0.000289498, 0.00030378, 0.000318509], False, 3, [1, 1, 1, 1, 1, 1, 1, 1, 1, 1, 1, 1, 1, 1, 1, 1, 1, 1, 1, 1, 1, 1, 1, 1, 1, 1, 1], False),
    Part.LineSegment(Vector(2.069307, -5.758834, 0), Vector(2.069307, -5.258834, 0)),
    Part.LineSegment(Vector(2.069307, -5.258834, 0), Vector(2.13341, -5.258834, 0)),
    Part.LineSegment(Vector(2.13341, -5.258834, 0), Vector(2.13341, -5.637741, 0)),
    Part.LineSegment(Vector(2.13341, -5.637741, 0), Vector(2.434091, -5.258834, 0)),
    Part.LineSegment(Vector(2.434091, -5.258834, 0), Vector(2.460333, -5.258834, 0)),
    Part.LineSegment(Vector(2.460333, -5.258834, 0), Vector(2.460333, -5.758834, 0)),
    Part.LineSegment(Vector(2.460333, -5.758834, 0), Vector(2.39623, -5.758834, 0)),
    Part.LineSegment(Vector(2.39623, -5.758834, 0), Vector(2.39623, -5.378927, 0)),
    Part.LineSegment(Vector(2.39623, -5.378927, 0), Vector(2.093045, -5.758834, 0)),
    Part.LineSegment(Vector(2.093045, -5.758834, 0), Vector(2.069307, -5.758834, 0)),
    Part.LineSegment(Vector(1.260307, -0.5, 0), Vector(1.151533, -0.5, 0)),
    Part.LineSegment(Vector(1.151533, -0.5, 0), Vector(1.119282, -0.442308, 0)),
    Part.LineSegment(Vector(1.119282, -0.442308, 0), Vector(1.196205, -0.442308, 0)),
    Part.LineSegment(Vector(1.196205, -0.442308, 0), Vector(1.196205, 0, 0)),
    Part.LineSegment(Vector(1.196205, 0, 0), Vector(1.260307, 0, 0)),
    Part.LineSegment(Vector(1.260307, 0, 0), Vector(1.260307, -0.5, 0)),
    Part.LineSegment(Vector(2.33023, -0.339744, 0), Vector(2.393632, -0.339744, 0)),
    Part.BSplineCurve([Vector(2.494093, -0.455128, 0), Vector(2.490849, -0.455062, 0), Vector(2.484469, -0.454931, 0), Vector(2.475073, -0.453581, 0), Vector(2.466054, -0.451382, 0), Vector(2.457382, -0.448333, 0), Vector(2.448993, -0.444571, 0), Vector(2.441093, -0.439698, 0), Vector(2.433553, -0.434029, 0), Vector(2.426273, -0.427666, 0), Vector(2.419647, -0.420201, 0), Vector(2.413721, -0.411722, 0), Vector(2.408488, -0.402221, 0), Vector(2.404015, -0.391713, 0), Vector(2.400308, -0.380172, 0), Vector(2.397334, -0.367611, 0), Vector(2.395035, -0.354024, 0), Vector(2.394108, -0.344592, 0), Vector(2.393632, -0.339744, 0)], [4, 1, 1, 1, 1, 1, 1, 1, 1, 1, 1, 1, 1, 1, 1, 1, 4], [0, 0.000009724, 0.000019129, 0.000028409, 0.000037532, 0.000046675, 0.000055934, 0.000065309, 0.000074958, 0.000084889, 0.000095171, 0.00010593, 0.000117372, 0.000129377, 0.000142252, 0.000156068, 0.000170679], False, 3, [1, 1, 1, 1, 1, 1, 1, 1, 1, 1, 1, 1, 1, 1, 1, 1, 1, 1, 1], False),
    Part.BSplineCurve([Vector(2.593051, -0.360176, 0), Vector(2.592995, -0.363354, 0), Vector(2.592884, -0.369643, 0), Vector(2.591371, -0.378852, 0), Vector(2.58924, -0.387784, 0), Vector(2.585943, -0.396296, 0), Vector(2.581972, -0.404555, 0), Vector(2.577004, -0.412454, 0), Vector(2.571039, -0.41992, 0), Vector(2.564403, -0.427121, 0), Vector(2.557063, -0.433623, 0), Vector(2.549311, -0.439454, 0), Vector(2.541051, -0.44419, 0), Vector(2.532508, -0.448332, 0), Vector(2.523418, -0.451268, 0), Vector(2.514003, -0.453454, 0), Vector(2.50419, -0.454968, 0), Vector(2.497504, -0.455074, 0), Vector(2.494093, -0.455128, 0)], [4, 1, 1, 1, 1, 1, 1, 1, 1, 1, 1, 1, 1, 1, 1, 1, 4], [0, 0.000009524, 0.000018844, 0.00002793, 0.000037027, 0.000046165, 0.000055391, 0.000064949, 0.0000748, 0.000084731, 0.000094327, 0.000103844, 0.000113253, 0.000122755, 0.000132425, 0.000142241, 0.000152465], False, 3, [1, 1, 1, 1, 1, 1, 1, 1, 1, 1, 1, 1, 1, 1, 1, 1, 1, 1, 1], False),
    Part.BSplineCurve([Vector(2.502306, -0.211238, 0), Vector(2.506862, -0.216098, 0), Vector(2.515607, -0.225423, 0), Vector(2.527931, -0.239075, 0), Vector(2.539049, -0.251695, 0), Vector(2.549023, -0.263276, 0), Vector(2.557589, -0.273972, 0), Vector(2.564979, -0.283626, 0), Vector(2.571109, -0.292284, 0), Vector(2.577475, -0.302476, 0), Vector(2.583783, -0.314693, 0), Vector(2.589149, -0.329596, 0), Vector(2.592368, -0.344815, 0), Vector(2.592823, -0.355053, 0), Vector(2.593051, -0.360176, 0)], [4, 1, 1, 1, 1, 1, 1, 1, 1, 1, 1, 1, 4], [0, 0.000019985, 0.000038351, 0.00005517, 0.000070445, 0.000084195, 0.000096274, 0.000106917, 0.000116005, 0.00013231, 0.000148056, 0.000163397, 0.000178761], False, 3, [1, 1, 1, 1, 1, 1, 1, 1, 1, 1, 1, 1, 1, 1, 1], False),
    Part.LineSegment(Vector(2.502306, -0.211238, 0), Vector(2.311, 0, 0)),
    Part.LineSegment(Vector(2.311, 0, 0), Vector(2.663564, 0, 0)),
    Part.LineSegment(Vector(2.663564, 0, 0), Vector(2.663564, -0.057692, 0)),
    Part.LineSegment(Vector(2.663564, -0.057692, 0), Vector(2.431893, -0.057692, 0)),
    Part.LineSegment(Vector(2.431893, -0.057692, 0), Vector(2.55489, -0.180789, 0)),
    Part.BSplineCurve([Vector(2.657153, -0.360877, 0), Vector(2.656897, -0.35405, 0), Vector(2.656388, -0.340488, 0), Vector(2.652466, -0.320423, 0), Vector(2.645873, -0.301005, 0), Vector(2.638258, -0.285194, 0), Vector(2.630556, -0.272413, 0), Vector(2.623488, -0.261864, 0), Vector(2.615185, -0.250457, 0), Vector(2.605469, -0.238269, 0), Vector(2.594725, -0.225021, 0), Vector(2.582529, -0.211054, 0), Vector(2.569256, -0.196086, 0), Vector(2.55979, -0.186007, 0), Vector(2.55489, -0.180789, 0)], [4, 1, 1, 1, 1, 1, 1, 1, 1, 1, 1, 1, 4], [0, 0.000020474, 0.000040668, 0.000061066, 0.000081852, 0.000093172, 0.000105811, 0.000119935, 0.000135485, 0.000152567, 0.000171101, 0.000191106, 0.000212579], False, 3, [1, 1, 1, 1, 1, 1, 1, 1, 1, 1, 1, 1, 1, 1, 1], False),
    Part.BSplineCurve([Vector(2.496396, -0.512821, 0), Vector(2.502346, -0.512699, 0), Vector(2.514021, -0.51246, 0), Vector(2.531023, -0.510213, 0), Vector(2.547114, -0.506589, 0), Vector(2.562298, -0.50164, 0), Vector(2.576548, -0.495032, 0), Vector(2.589893, -0.487063, 0), Vector(2.602203, -0.477485, 0), Vector(2.613568, -0.466768, 0), Vector(2.623606, -0.454979, 0), Vector(2.632672, -0.442859, 0), Vector(2.640167, -0.430161, 0), Vector(2.646445, -0.417118, 0), Vector(2.651276, -0.403622, 0), Vector(2.654688, -0.389728, 0), Vector(2.656733, -0.375428, 0), Vector(2.657013, -0.365758, 0), Vector(2.657153, -0.360877, 0)], [4, 1, 1, 1, 1, 1, 1, 1, 1, 1, 1, 1, 1, 1, 1, 1, 4], [0, 0.000017842, 0.000035012, 0.00005134, 0.000067272, 0.000082823, 0.000098368, 0.000113794, 0.000129523, 0.000145145, 0.00016019, 0.000174877, 0.000189303, 0.000203559, 0.000217795, 0.000232158, 0.000246798], False, 3, [1, 1, 1, 1, 1, 1, 1, 1, 1, 1, 1, 1, 1, 1, 1, 1, 1, 1, 1], False),
    Part.BSplineCurve([Vector(2.33023, -0.339744, 0), Vector(2.330528, -0.346195, 0), Vector(2.331111, -0.358813, 0), Vector(2.333697, -0.377199, 0), Vector(2.337887, -0.394523, 0), Vector(2.343176, -0.410933, 0), Vector(2.350231, -0.426223, 0), Vector(2.358371, -0.440659, 0), Vector(2.368198, -0.453939, 0), Vector(2.379303, -0.466084, 0), Vector(2.391357, -0.477118, 0), Vector(2.404316, -0.486633, 0), Vector(2.41796, -0.494741, 0), Vector(2.432292, -0.501357, 0), Vector(2.44734, -0.50648, 0), Vector(2.46306, -0.510207, 0), Vector(2.479504, -0.51245, 0), Vector(2.490714, -0.512696, 0), Vector(2.496396, -0.512821, 0)], [4, 1, 1, 1, 1, 1, 1, 1, 1, 1, 1, 1, 1, 1, 1, 1, 4], [0, 0.000019368, 0.000037882, 0.000055592, 0.000072791, 0.00008951, 0.000106021, 0.000122428, 0.000138948, 0.000155327, 0.000171373, 0.000187091, 0.000202866, 0.00021864, 0.000234698, 0.000251272, 0.000268313], False, 3, [1, 1, 1, 1, 1, 1, 1, 1, 1, 1, 1, 1, 1, 1, 1, 1, 1, 1, 1], False),
], False)
sketch7.addConstraint([
    Sketcher.Constraint("Block", 4),
    Sketcher.Constraint("Block", 5),
    Sketcher.Constraint("Block", 6),
    Sketcher.Constraint("Block", 7),
    Sketcher.Constraint("Block", 8),
    Sketcher.Constraint("Block", 9),
    Sketcher.Constraint("Block", 10),
    Sketcher.Constraint("Block", 11),
    Sketcher.Constraint("Block", 29),
    Sketcher.Constraint("Block", 30),
    Sketcher.Constraint("Block", 31),
    Sketcher.Constraint("Block", 37),
    Sketcher.Constraint("Block", 38),
    Sketcher.Constraint("Block", 39),
    Sketcher.Constraint("Coincident", 0, 2, 1, 1),
    Sketcher.Constraint("Coincident", 1, 2, 2, 1),
    Sketcher.Constraint("Coincident", 2, 2, 3, 1),
    Sketcher.Constraint("Coincident", 3, 2, 0, 1),
    Sketcher.Constraint("Coincident", 12, 2, 13, 1),
    Sketcher.Constraint("Coincident", 13, 2, 14, 1),
    Sketcher.Constraint("Coincident", 14, 2, 15, 1),
    Sketcher.Constraint("Coincident", 15, 2, 16, 1),
    Sketcher.Constraint("Coincident", 16, 2, 17, 1),
    Sketcher.Constraint("Coincident", 17, 2, 18, 1),
    Sketcher.Constraint("Coincident", 18, 2, 19, 1),
    Sketcher.Constraint("Coincident", 19, 2, 20, 1),
    Sketcher.Constraint("Coincident", 20, 2, 21, 1),
    Sketcher.Constraint("Coincident", 21, 2, 12, 1),
    Sketcher.Constraint("Coincident", 22, 2, 23, 1),
    Sketcher.Constraint("Coincident", 23, 2, 24, 1),
    Sketcher.Constraint("Coincident", 24, 2, 25, 1),
    Sketcher.Constraint("Coincident", 25, 2, 26, 1),
    Sketcher.Constraint("Coincident", 26, 2, 27, 1),
    Sketcher.Constraint("Coincident", 27, 2, 22, 1),
    Sketcher.Constraint("Coincident", 28, 2, 29, 2),
    Sketcher.Constraint("Coincident", 31, 1, 32, 1),
    Sketcher.Constraint("Coincident", 32, 2, 33, 1),
    Sketcher.Constraint("Coincident", 33, 2, 34, 1),
    Sketcher.Constraint("Coincident", 34, 2, 35, 1),
    Sketcher.Constraint("Coincident", 35, 2, 36, 1),
    Sketcher.Constraint("Coincident", 36, 2, 37, 2),
    Sketcher.Constraint("Coincident", 39, 1, 28, 1),
    Sketcher.Constraint("Vertical", 0),
    Sketcher.Constraint("Horizontal", 1),
    Sketcher.Constraint("Vertical", 2),
    Sketcher.Constraint("Horizontal", 3),
    Sketcher.Constraint("Vertical", 12),
    Sketcher.Constraint("Horizontal", 13),
    Sketcher.Constraint("Vertical", 14),
    Sketcher.Constraint("Horizontal", 16),
    Sketcher.Constraint("Vertical", 17),
    Sketcher.Constraint("Horizontal", 18),
    Sketcher.Constraint("Vertical", 19),
    Sketcher.Constraint("Horizontal", 21),
    Sketcher.Constraint("Horizontal", 22),
    Sketcher.Constraint("Horizontal", 24),
    Sketcher.Constraint("Vertical", 25),
    Sketcher.Constraint("Horizontal", 26),
    Sketcher.Constraint("Vertical", 27),
    Sketcher.Constraint("Horizontal", 33),
    Sketcher.Constraint("Vertical", 34),
    Sketcher.Constraint("Horizontal", 35),
    Sketcher.Constraint("PointOnObject", 25, 2, -1),
    Sketcher.Constraint("PointOnObject", 32, 2, -1),
    Sketcher.Constraint("Horizontal", 13, 2, 15, 2),
    Sketcher.Constraint("Horizontal", 18, 2, 20, 2),
    Sketcher.Constraint("Equal", 13, 18),
    Sketcher.Constraint("Equal", 18, 26),
    Sketcher.Constraint("Equal", 17, 27),
    Sketcher.Constraint("DistanceX", 1, 1, 1, 2, Q("0.8 mm")),
    Sketcher.Constraint("DistanceY", 0, 1, 0, 2, Q("0.6 mm")),
    Sketcher.Constraint("DistanceY", 12, 1, 12, 2, Q("0.5 mm")),
    Sketcher.Constraint("DistanceY", 0, 2, -1, 1, Q("2.6 mm")),
    Sketcher.Constraint("DistanceX", 0, 2, -1, 1, Q("0.035 mm")),
    Sketcher.Constraint("DistanceX", -1, 1, 32, 2, Q("2.311 mm")),
    Sketcher.Constraint("DistanceX", 16, 1, 16, 2, Q("0.026242 mm")),
    Sketcher.Constraint("DistanceX", 35, 2, 35, 1, Q("0.231671 mm")),
    Sketcher.Constraint("DistanceX", 22, 2, 28, 2, Q("1.242098 mm")),
    Sketcher.Constraint("DistanceX", 13, 1, 13, 2, Q("0.064103 mm")),
    Sketcher.Constraint("DistanceX", 21, 2, 21, 1, Q("0.023738 mm")),
    Sketcher.Constraint("DistanceX", 22, 2, 22, 1, Q("0.108774 mm")),
    Sketcher.Constraint("DistanceX", 24, 1, 24, 2, Q("0.076923 mm")),
    Sketcher.Constraint("DistanceX", 33, 1, 33, 2, Q("0.352564 mm")),
    Sketcher.Constraint("DistanceY", 14, 2, 14, 1, Q("0.378906 mm")),
    Sketcher.Constraint("DistanceY", 19, 1, 19, 2, Q("0.379908 mm")),
    Sketcher.Constraint("DistanceY", 25, 1, 25, 2, Q("0.442308 mm")),
    Sketcher.Constraint("DistanceY", 34, 2, 34, 1, Q("0.057692 mm")),
    Sketcher.Constraint("DistanceX", -1, 1, 13, 2, Q("2.13341 mm")),
    Sketcher.Constraint("DistanceY", 14, 2, -1, 1, Q("5.637741 mm")),
    Sketcher.Constraint("DistanceX", -1, 1, 15, 2, Q("2.434091 mm")),
])
pad6 = doc.addObject("PartDesign::Pad", "Pad005")
body.addObject(pad6)
pad6.Profile = sketch7
pad6.Length = 0.05
pad6.Reversed = True

sketch8 = doc.addObject("Sketcher::SketchObject", "Sketch007")
body.addObject(sketch8)
sketch8.AttachmentSupport = (doc.XZ_Plane, [""])
sketch8.MapMode = "FlatFace"
sketch8.AttachmentOffset = App.Placement(Vector(0, 0, -2.7), App.Rotation())
sketch8.addGeometry([
    Part.LineSegment(Vector(-0.037, -2.91, 0), Vector(-0.037, -2.89, 0)),
    Part.LineSegment(Vector(-0.037, -2.89, 0), Vector(0.767, -2.89, 0)),
    Part.LineSegment(Vector(0.767, -2.89, 0), Vector(0.767, -2.91, 0)),
    Part.LineSegment(Vector(0.767, -2.91, 0), Vector(-0.037, -2.91, 0)),
], False)
sketch8.addConstraint([
    Sketcher.Constraint("Coincident", 0, 2, 1, 1),
    Sketcher.Constraint("Coincident", 1, 2, 2, 1),
    Sketcher.Constraint("Coincident", 2, 2, 3, 1),
    Sketcher.Constraint("Coincident", 3, 2, 0, 1),
    Sketcher.Constraint("Vertical", 0),
    Sketcher.Constraint("Horizontal", 1),
    Sketcher.Constraint("Vertical", 2),
    Sketcher.Constraint("Horizontal", 3),
    Sketcher.Constraint("DistanceY", 0, 1, 0, 2, Q("0.02 mm")),
    Sketcher.Constraint("DistanceY", 0, 2, -1, 1, Q("2.89 mm")),
    Sketcher.Constraint("DistanceX", 1, 1, 1, 2, Q("0.803291 mm")),
    Sketcher.Constraint("DistanceX", 0, 2, -1, 1, Q("0.036507 mm")),
])
pocket2 = doc.addObject("PartDesign::Pocket", "Pocket001")
body.addObject(pocket2)
pocket2.Profile = sketch8
pocket2.Length = 0.02
pocket2.Reversed = True

doc.recompute()
